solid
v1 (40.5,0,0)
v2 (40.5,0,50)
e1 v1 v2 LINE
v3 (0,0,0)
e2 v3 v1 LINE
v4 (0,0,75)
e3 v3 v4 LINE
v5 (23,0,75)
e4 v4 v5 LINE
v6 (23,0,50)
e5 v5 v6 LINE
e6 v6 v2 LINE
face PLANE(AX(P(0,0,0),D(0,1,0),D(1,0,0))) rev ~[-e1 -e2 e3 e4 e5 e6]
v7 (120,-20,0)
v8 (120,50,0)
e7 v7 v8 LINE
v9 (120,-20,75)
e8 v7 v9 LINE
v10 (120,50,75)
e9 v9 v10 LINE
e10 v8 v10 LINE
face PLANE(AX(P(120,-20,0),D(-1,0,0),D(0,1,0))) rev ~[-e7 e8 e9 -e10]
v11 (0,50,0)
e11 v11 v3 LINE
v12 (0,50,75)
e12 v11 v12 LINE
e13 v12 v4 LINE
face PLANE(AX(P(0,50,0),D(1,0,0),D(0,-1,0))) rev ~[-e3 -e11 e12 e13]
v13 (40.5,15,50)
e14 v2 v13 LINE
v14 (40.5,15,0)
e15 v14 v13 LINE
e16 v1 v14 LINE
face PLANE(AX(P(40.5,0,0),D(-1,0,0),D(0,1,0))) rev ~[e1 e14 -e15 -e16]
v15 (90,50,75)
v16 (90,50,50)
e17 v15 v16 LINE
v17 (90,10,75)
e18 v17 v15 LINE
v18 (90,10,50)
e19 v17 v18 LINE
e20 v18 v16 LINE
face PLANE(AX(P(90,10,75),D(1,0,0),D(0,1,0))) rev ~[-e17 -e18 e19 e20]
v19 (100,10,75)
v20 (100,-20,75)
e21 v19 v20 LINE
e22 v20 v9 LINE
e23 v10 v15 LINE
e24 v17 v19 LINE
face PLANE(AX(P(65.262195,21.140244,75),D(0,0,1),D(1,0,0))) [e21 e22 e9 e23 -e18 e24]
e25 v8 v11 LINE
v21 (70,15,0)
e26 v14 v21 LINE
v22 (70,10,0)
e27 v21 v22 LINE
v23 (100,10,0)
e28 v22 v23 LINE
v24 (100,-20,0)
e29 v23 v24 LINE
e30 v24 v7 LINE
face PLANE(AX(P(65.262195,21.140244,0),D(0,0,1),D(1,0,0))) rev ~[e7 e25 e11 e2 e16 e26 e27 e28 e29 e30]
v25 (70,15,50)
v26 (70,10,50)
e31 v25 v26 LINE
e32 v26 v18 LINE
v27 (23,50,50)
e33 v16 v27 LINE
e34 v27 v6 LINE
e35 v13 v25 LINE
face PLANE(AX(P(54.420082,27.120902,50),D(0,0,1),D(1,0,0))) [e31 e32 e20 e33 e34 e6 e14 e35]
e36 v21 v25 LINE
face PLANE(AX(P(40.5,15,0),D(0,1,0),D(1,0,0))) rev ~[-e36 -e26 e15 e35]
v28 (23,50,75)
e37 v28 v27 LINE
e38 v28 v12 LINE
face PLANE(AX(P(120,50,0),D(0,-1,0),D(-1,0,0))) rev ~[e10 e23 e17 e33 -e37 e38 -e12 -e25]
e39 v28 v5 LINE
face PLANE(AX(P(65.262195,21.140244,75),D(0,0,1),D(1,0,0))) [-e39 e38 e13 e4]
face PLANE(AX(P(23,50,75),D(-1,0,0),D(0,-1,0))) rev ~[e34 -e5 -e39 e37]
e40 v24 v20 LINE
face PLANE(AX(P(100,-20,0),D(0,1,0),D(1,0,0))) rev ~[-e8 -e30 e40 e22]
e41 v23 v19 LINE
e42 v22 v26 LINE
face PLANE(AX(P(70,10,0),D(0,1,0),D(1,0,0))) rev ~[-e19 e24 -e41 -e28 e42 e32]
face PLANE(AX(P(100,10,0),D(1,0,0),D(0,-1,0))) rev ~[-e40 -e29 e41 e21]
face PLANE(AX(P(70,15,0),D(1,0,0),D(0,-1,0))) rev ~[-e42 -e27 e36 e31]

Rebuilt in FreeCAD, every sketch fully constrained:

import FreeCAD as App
import Part
import Sketcher

V = App.Vector

doc = App.newDocument("Part")
body = doc.addObject("PartDesign::Body", "Body")

sketch1 = body.newObject("Sketcher::SketchObject", "Sketch")
sketch1.AttachmentSupport = (doc.getObject("XY_Plane"), [""])
sketch1.MapMode = "FlatFace"
sketch1.addGeometry(Part.LineSegment(V(0, 50, 0), V(0, 0, 0)), False)
sketch1.addGeometry(Part.LineSegment(V(0, 0, 0), V(40, 0, 0)), False)
sketch1.addGeometry(Part.LineSegment(V(40, 0, 0), V(40, 15, 0)), False)
sketch1.addGeometry(Part.LineSegment(V(40, 15, 0), V(70, 15, 0)), False)
sketch1.addGeometry(Part.LineSegment(V(70, 15, 0), V(70, 10, 0)), False)
sketch1.addGeometry(Part.LineSegment(V(70, 10, 0), V(100, 10, 0)), False)
sketch1.addGeometry(Part.LineSegment(V(100, 10, 0), V(100, -20, 0)), False)
sketch1.addGeometry(Part.LineSegment(V(100, -20, 0), V(120, -20, 0)), False)
sketch1.addGeometry(Part.LineSegment(V(120, -20, 0), V(120, 50, 0)), False)
sketch1.addGeometry(Part.LineSegment(V(120, 50, 0), V(0, 50, 0)), False)
sketch1.addConstraint(Sketcher.Constraint("Coincident", 0, 2, 1, 1))
sketch1.addConstraint(Sketcher.Constraint("Coincident", 1, 2, 2, 1))
sketch1.addConstraint(Sketcher.Constraint("Coincident", 2, 2, 3, 1))
sketch1.addConstraint(Sketcher.Constraint("Coincident", 3, 2, 4, 1))
sketch1.addConstraint(Sketcher.Constraint("Coincident", 4, 2, 5, 1))
sketch1.addConstraint(Sketcher.Constraint("Coincident", 5, 2, 6, 1))
sketch1.addConstraint(Sketcher.Constraint("Coincident", 6, 2, 7, 1))
sketch1.addConstraint(Sketcher.Constraint("Coincident", 7, 2, 8, 1))
sketch1.addConstraint(Sketcher.Constraint("Coincident", 8, 2, 9, 1))
sketch1.addConstraint(Sketcher.Constraint("Coincident", 9, 2, 0, 1))
sketch1.addConstraint(Sketcher.Constraint("Vertical", 0))
sketch1.addConstraint(Sketcher.Constraint("Horizontal", 1))
sketch1.addConstraint(Sketcher.Constraint("Vertical", 2))
sketch1.addConstraint(Sketcher.Constraint("Horizontal", 3))
sketch1.addConstraint(Sketcher.Constraint("Vertical", 4))
sketch1.addConstraint(Sketcher.Constraint("Horizontal", 5))
sketch1.addConstraint(Sketcher.Constraint("Vertical", 6))
sketch1.addConstraint(Sketcher.Constraint("Horizontal", 7))
sketch1.addConstraint(Sketcher.Constraint("Vertical", 8))
sketch1.addConstraint(Sketcher.Constraint("Horizontal", 9))
sketch1.addConstraint(Sketcher.Constraint("Coincident", 0, 2, -1, 1))
sketch1.addConstraint(Sketcher.Constraint("Equal", 5, 6))
sketch1.addConstraint(Sketcher.Constraint("DistanceX", 5, 1, 5, 2, 30.0))
sketch1.addConstraint(Sketcher.Constraint("DistanceX", 7, 1, 7, 2, 20.0))
sketch1.addConstraint(Sketcher.Constraint("DistanceX", 9, 2, 9, 1, 120.0))
sketch1.addConstraint(Sketcher.Constraint("DistanceY", 0, 2, 0, 1, 50.0))
sketch1.addConstraint(Sketcher.Constraint("DistanceY", 2, 1, 2, 2, 15.0))
sketch1.addConstraint(Sketcher.Constraint("DistanceY", 4, 2, 4, 1, 5.0))
sketch1.addConstraint(Sketcher.Constraint("DistanceX", 1, 1, 1, 2, 40.5))
pad1 = body.newObject("PartDesign::Pad", "Pad")
pad1.Profile = sketch1
pad1.Length = 75

sketch2 = body.newObject("Sketcher::SketchObject", "Sketch001")
sketch2.AttachmentSupport = (doc.getObject("XY_Plane"), [""])
sketch2.MapMode = "FlatFace"
sketch2.AttachmentOffset = App.Placement(V(0, 0, 75), App.Rotation())
sketch2.addGeometry(Part.LineSegment(V(23, 50, 0), V(23, 0, 0)), False)
sketch2.addGeometry(Part.LineSegment(V(23, 0, 0), V(40, 0, 0)), False)
sketch2.addGeometry(Part.LineSegment(V(40, 0, 0), V(40, 15, 0)), False)
sketch2.addGeometry(Part.LineSegment(V(40, 15, 0), V(70, 15, 0)), False)
sketch2.addGeometry(Part.LineSegment(V(70, 15, 0), V(70, 10, 0)), False)
sketch2.addGeometry(Part.LineSegment(V(70, 10, 0), V(90, 10, 0)), False)
sketch2.addGeometry(Part.LineSegment(V(90, 10, 0), V(90, 50, 0)), False)
sketch2.addGeometry(Part.LineSegment(V(90, 50, 0), V(23, 50, 0)), False)
sketch2.addConstraint(Sketcher.Constraint("Coincident", 0, 2, 1, 1))
sketch2.addConstraint(Sketcher.Constraint("Coincident", 1, 2, 2, 1))
sketch2.addConstraint(Sketcher.Constraint("Coincident", 2, 2, 3, 1))
sketch2.addConstraint(Sketcher.Constraint("Coincident", 3, 2, 4, 1))
sketch2.addConstraint(Sketcher.Constraint("Coincident", 4, 2, 5, 1))
sketch2.addConstraint(Sketcher.Constraint("Coincident", 5, 2, 6, 1))
sketch2.addConstraint(Sketcher.Constraint("Coincident", 6, 2, 7, 1))
sketch2.addConstraint(Sketcher.Constraint("Coincident", 7, 2, 0, 1))
sketch2.addConstraint(Sketcher.Constraint("Vertical", 0))
sketch2.addConstraint(Sketcher.Constraint("Horizontal", 1))
sketch2.addConstraint(Sketcher.Constraint("Vertical", 2))
sketch2.addConstraint(Sketcher.Constraint("Horizontal", 3))
sketch2.addConstraint(Sketcher.Constraint("Vertical", 4))
sketch2.addConstraint(Sketcher.Constraint("Horizontal", 5))
sketch2.addConstraint(Sketcher.Constraint("Vertical", 6))
sketch2.addConstraint(Sketcher.Constraint("Horizontal", 7))
sketch2.addConstraint(Sketcher.Constraint("PointOnObject", 0, 2, -1))
sketch2.addConstraint(Sketcher.Constraint("DistanceX", 5, 1, 5, 2, 20.0))
sketch2.addConstraint(Sketcher.Constraint("DistanceX", 7, 2, 7, 1, 67.0))
sketch2.addConstraint(Sketcher.Constraint("DistanceY", 0, 2, 0, 1, 50.0))
sketch2.addConstraint(Sketcher.Constraint("DistanceY", 2, 1, 2, 2, 15.0))
sketch2.addConstraint(Sketcher.Constraint("DistanceY", 4, 2, 4, 1, 5.0))
sketch2.addConstraint(Sketcher.Constraint("DistanceX", 1, 1, 1, 2, 17.5))
sketch2.addConstraint(Sketcher.Constraint("DistanceX", -1, 1, 0, 2, 23.0))
pocket1 = body.newObject("PartDesign::Pocket", "Pocket")
pocket1.Profile = sketch2
pocket1.Length = 25

doc.recompute()
